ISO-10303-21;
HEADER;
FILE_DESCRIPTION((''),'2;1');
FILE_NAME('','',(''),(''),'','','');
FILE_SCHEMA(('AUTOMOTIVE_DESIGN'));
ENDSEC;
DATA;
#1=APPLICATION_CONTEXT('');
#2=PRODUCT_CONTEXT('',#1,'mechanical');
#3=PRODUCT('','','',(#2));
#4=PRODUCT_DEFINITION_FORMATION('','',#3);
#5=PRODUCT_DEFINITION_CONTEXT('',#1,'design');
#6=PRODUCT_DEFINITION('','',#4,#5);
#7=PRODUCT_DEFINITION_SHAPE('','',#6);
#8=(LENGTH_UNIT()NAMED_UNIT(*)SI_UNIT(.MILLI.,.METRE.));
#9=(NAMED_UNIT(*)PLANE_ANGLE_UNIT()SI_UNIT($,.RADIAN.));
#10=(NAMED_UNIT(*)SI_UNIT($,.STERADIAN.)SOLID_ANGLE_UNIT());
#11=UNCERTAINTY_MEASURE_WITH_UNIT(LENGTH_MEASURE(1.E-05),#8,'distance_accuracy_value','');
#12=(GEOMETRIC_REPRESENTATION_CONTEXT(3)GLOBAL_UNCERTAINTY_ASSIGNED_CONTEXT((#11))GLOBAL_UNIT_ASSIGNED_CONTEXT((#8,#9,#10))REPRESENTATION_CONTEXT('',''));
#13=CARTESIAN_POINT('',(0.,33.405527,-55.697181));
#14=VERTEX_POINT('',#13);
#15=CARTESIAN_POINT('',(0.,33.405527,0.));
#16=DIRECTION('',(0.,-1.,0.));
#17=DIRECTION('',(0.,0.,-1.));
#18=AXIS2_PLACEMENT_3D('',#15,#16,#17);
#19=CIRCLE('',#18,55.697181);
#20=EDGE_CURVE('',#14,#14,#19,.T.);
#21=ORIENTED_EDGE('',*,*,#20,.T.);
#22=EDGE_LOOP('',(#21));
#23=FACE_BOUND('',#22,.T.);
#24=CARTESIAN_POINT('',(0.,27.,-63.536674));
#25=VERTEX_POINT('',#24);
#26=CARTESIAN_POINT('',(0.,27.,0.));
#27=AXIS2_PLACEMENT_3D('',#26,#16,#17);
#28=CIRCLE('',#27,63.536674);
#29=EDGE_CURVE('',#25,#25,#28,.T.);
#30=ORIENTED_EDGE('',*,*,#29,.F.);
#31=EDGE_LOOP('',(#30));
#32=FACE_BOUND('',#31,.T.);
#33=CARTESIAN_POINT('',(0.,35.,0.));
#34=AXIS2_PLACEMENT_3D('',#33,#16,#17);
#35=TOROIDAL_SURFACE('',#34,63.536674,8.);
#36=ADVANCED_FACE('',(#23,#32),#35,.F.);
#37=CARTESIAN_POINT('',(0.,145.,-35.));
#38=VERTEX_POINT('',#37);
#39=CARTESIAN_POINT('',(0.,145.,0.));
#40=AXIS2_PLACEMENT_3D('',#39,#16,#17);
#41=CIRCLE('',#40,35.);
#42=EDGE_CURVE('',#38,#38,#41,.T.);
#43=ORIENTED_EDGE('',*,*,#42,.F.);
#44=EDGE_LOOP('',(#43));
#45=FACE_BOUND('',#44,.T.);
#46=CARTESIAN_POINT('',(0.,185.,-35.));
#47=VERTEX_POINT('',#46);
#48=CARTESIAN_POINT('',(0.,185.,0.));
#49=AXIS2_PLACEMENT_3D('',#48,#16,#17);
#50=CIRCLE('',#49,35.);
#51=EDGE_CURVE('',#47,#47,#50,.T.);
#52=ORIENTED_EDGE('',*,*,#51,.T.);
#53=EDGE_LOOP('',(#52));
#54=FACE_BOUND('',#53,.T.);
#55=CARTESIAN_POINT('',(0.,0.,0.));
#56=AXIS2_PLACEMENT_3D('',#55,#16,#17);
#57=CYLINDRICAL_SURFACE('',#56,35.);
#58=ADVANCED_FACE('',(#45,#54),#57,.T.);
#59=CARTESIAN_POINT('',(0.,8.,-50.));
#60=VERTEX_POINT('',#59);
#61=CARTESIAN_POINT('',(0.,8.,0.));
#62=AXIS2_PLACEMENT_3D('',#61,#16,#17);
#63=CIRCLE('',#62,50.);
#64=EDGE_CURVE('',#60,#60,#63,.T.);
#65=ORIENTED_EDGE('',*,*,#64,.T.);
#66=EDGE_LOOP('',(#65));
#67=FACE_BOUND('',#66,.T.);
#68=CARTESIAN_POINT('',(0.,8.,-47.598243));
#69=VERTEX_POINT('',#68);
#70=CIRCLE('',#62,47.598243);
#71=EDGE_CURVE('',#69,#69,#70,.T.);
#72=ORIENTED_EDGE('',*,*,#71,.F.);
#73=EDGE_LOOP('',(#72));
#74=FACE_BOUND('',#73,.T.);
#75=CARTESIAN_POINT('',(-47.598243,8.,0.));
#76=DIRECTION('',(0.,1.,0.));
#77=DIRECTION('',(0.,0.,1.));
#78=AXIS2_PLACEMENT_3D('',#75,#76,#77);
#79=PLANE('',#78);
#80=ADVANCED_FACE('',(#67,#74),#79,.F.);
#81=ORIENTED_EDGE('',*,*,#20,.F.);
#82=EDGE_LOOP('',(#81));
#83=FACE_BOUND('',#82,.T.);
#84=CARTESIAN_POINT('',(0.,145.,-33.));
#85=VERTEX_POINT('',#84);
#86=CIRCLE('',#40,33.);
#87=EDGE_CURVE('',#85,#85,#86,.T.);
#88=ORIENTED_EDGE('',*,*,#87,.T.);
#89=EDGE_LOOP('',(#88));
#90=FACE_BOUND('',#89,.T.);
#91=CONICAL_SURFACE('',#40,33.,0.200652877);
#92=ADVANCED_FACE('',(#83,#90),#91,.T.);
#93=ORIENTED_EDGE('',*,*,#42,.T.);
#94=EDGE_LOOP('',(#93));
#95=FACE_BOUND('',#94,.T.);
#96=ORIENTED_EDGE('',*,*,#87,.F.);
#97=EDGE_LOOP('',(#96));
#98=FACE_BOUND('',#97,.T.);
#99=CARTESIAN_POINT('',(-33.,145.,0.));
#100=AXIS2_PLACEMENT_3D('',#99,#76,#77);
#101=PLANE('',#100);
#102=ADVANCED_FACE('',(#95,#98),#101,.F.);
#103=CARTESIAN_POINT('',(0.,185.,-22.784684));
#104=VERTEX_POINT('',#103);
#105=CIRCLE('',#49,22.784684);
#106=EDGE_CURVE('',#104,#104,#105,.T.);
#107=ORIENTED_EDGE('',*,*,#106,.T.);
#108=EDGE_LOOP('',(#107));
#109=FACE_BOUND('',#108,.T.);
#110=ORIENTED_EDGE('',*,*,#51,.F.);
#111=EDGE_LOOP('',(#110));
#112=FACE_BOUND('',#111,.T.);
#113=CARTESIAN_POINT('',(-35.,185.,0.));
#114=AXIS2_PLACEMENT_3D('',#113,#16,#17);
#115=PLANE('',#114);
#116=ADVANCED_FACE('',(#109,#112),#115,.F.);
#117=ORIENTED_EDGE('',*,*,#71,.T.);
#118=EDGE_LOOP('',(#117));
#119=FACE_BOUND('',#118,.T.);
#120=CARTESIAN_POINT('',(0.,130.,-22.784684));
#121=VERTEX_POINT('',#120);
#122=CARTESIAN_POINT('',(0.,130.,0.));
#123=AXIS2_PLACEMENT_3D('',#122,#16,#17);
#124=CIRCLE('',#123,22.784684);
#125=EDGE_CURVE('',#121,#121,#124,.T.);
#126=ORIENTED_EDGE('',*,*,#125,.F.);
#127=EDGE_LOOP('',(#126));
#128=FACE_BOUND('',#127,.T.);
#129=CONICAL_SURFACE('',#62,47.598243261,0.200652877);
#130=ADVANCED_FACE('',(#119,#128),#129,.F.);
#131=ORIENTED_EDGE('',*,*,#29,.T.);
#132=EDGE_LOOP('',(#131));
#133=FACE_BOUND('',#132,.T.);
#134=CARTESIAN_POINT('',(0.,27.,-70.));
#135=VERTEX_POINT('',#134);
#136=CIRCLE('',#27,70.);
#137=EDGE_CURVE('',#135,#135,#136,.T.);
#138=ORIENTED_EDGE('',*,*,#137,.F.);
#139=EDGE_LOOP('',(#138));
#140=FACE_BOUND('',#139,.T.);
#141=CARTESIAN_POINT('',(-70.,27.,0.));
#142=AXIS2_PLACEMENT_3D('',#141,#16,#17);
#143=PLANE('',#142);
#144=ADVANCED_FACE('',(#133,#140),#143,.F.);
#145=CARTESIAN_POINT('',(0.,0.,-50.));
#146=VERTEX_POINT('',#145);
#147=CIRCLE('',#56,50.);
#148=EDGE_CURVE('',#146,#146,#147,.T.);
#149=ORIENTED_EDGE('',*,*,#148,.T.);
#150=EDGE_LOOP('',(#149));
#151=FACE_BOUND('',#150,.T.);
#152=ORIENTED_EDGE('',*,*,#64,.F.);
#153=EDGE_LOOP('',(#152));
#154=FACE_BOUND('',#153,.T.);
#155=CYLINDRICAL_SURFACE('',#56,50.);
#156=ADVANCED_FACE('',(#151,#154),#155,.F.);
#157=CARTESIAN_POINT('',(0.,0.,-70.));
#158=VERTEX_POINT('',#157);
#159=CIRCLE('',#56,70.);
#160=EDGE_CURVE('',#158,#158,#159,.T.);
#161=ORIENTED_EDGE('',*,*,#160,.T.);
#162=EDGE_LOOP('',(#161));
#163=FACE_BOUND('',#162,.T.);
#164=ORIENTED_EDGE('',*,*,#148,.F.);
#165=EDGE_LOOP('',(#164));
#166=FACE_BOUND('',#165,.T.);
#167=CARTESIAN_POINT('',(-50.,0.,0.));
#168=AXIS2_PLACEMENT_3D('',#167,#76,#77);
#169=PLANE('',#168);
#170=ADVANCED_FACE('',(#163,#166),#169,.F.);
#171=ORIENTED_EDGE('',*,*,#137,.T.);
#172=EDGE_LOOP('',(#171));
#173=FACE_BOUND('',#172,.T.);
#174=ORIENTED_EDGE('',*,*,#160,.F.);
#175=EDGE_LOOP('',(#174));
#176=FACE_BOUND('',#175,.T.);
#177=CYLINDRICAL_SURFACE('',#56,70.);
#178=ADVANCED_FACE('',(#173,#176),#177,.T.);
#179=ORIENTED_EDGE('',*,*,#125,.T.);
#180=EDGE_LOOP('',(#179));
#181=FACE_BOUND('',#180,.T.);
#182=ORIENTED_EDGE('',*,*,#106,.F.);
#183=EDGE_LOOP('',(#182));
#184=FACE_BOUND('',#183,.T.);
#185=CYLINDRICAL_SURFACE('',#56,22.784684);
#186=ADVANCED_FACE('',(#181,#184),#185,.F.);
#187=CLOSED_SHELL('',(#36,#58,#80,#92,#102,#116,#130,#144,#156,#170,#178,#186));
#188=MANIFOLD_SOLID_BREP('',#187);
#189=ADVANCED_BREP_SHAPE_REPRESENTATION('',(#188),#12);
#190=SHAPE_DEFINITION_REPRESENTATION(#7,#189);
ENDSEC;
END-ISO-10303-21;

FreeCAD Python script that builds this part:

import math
import FreeCAD as App
import Part
import Sketcher

doc = App.newDocument("Part")
body = doc.addObject("PartDesign::Body", "Body")

sketch1 = body.newObject("Sketcher::SketchObject", "Sketch")
sketch1.AttachmentSupport = (doc.getObject("XY_Plane"), [""])
sketch1.MapMode = "FlatFace"
sketch1.addGeometry(Part.LineSegment(App.Vector(-70, 27, 0), App.Vector(-70, 0, 0)), False)
sketch1.addGeometry(Part.LineSegment(App.Vector(-70, 0, 0), App.Vector(-50, 0, 0)), False)
sketch1.addGeometry(Part.LineSegment(App.Vector(-50, 0, 0), App.Vector(-50, 8, 0)), False)
sketch1.addGeometry(Part.LineSegment(App.Vector(-50, 8, 0), App.Vector(-47.598243, 8, 0)), False)
sketch1.addGeometry(Part.LineSegment(App.Vector(-47.598243, 8, 0), App.Vector(-22.784684, 130, 0)), False)
sketch1.addGeometry(Part.LineSegment(App.Vector(-22.784684, 130, 0), App.Vector(-22.784684, 185, 0)), False)
sketch1.addGeometry(Part.LineSegment(App.Vector(-22.784684, 185, 0), App.Vector(-35, 185, 0)), False)
sketch1.addGeometry(Part.LineSegment(App.Vector(-35, 185, 0), App.Vector(-35, 145, 0)), False)
sketch1.addGeometry(Part.LineSegment(App.Vector(-35, 145, 0), App.Vector(-33, 145, 0)), False)
sketch1.addGeometry(Part.LineSegment(App.Vector(-33, 145, 0), App.Vector(-55.697181, 33.405527, 0)), False)
sketch1.addGeometry(Part.ArcOfCircle(Part.Circle(App.Vector(-63.536674, 35, 0), App.Vector(0, 0, 1), 8), math.radians(-90), math.radians(-11.496563)), False)
sketch1.addGeometry(Part.LineSegment(App.Vector(-63.536674, 27, 0), App.Vector(-70, 27, 0)), False)
sketch1.addConstraint(Sketcher.Constraint("Coincident", 0, 2, 1, 1))
sketch1.addConstraint(Sketcher.Constraint("Coincident", 1, 2, 2, 1))
sketch1.addConstraint(Sketcher.Constraint("Coincident", 2, 2, 3, 1))
sketch1.addConstraint(Sketcher.Constraint("Coincident", 3, 2, 4, 1))
sketch1.addConstraint(Sketcher.Constraint("Coincident", 4, 2, 5, 1))
sketch1.addConstraint(Sketcher.Constraint("Coincident", 5, 2, 6, 1))
sketch1.addConstraint(Sketcher.Constraint("Coincident", 6, 2, 7, 1))
sketch1.addConstraint(Sketcher.Constraint("Coincident", 7, 2, 8, 1))
sketch1.addConstraint(Sketcher.Constraint("Coincident", 8, 2, 9, 1))
sketch1.addConstraint(Sketcher.Constraint("Tangent", 9, 2, 10, 2))
sketch1.addConstraint(Sketcher.Constraint("Tangent", 10, 1, 11, 1))
sketch1.addConstraint(Sketcher.Constraint("Coincident", 11, 2, 0, 1))
sketch1.addConstraint(Sketcher.Constraint("Vertical", 0))
sketch1.addConstraint(Sketcher.Constraint("Horizontal", 1))
sketch1.addConstraint(Sketcher.Constraint("Vertical", 2))
sketch1.addConstraint(Sketcher.Constraint("Horizontal", 3))
sketch1.addConstraint(Sketcher.Constraint("Vertical", 5))
sketch1.addConstraint(Sketcher.Constraint("Horizontal", 6))
sketch1.addConstraint(Sketcher.Constraint("Vertical", 7))
sketch1.addConstraint(Sketcher.Constraint("Horizontal", 8))
sketch1.addConstraint(Sketcher.Constraint("Horizontal", 11))
sketch1.addConstraint(Sketcher.Constraint("PointOnObject", 0, 2, -1))
sketch1.addConstraint(Sketcher.Constraint("Parallel", 4, 9))
sketch1.addConstraint(Sketcher.Constraint("Radius", 10, 8.0))
sketch1.addConstraint(Sketcher.Constraint("DistanceX", 1, 1, 1, 2, 20.0))
sketch1.addConstraint(Sketcher.Constraint("DistanceX", 8, 1, 8, 2, 2.0))
sketch1.addConstraint(Sketcher.Constraint("DistanceY", 0, 2, 0, 1, 27.0))
sketch1.addConstraint(Sketcher.Constraint("DistanceY", 2, 1, 2, 2, 8.0))
sketch1.addConstraint(Sketcher.Constraint("DistanceY", 5, 1, 5, 2, 55.0))
sketch1.addConstraint(Sketcher.Constraint("DistanceY", 7, 2, 7, 1, 40.0))
sketch1.addConstraint(Sketcher.Constraint("DistanceX", 0, 2, -1, 1, 70.0))
sketch1.addConstraint(Sketcher.Constraint("DistanceY", -1, 1, 4, 2, 130.0))
sketch1.addConstraint(Sketcher.Constraint("DistanceX", 6, 2, -1, 1, 35.0))
sketch1.addConstraint(Sketcher.Constraint("Distance", 9, 113.879271))
sketch1.addConstraint(Sketcher.Constraint("DistanceX", 3, 1, 3, 2, 2.401757))
revolution = body.newObject("PartDesign::Revolution", "Revolution")
revolution.Profile = sketch1
revolution.ReferenceAxis = (sketch1, ["V_Axis"])
revolution.Angle = 360

doc.recompute()
